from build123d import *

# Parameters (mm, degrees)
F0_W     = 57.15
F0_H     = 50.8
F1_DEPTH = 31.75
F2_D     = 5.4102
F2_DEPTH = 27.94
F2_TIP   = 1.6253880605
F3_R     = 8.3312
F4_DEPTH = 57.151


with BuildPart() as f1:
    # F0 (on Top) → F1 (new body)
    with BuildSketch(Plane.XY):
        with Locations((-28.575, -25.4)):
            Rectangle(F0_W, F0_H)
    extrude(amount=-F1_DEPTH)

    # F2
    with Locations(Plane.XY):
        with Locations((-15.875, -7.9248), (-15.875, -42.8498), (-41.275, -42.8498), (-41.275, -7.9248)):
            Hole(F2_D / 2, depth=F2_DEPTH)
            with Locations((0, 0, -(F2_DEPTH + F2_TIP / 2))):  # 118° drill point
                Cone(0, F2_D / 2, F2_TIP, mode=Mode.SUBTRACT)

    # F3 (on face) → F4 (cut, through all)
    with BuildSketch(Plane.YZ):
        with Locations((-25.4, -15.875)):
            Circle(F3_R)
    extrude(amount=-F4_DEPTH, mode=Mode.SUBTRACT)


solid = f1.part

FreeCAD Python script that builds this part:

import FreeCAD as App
import Part
import Sketcher
from FreeCAD import Vector
Q = App.Units.Quantity

doc = App.newDocument("Part")
params = doc.addObject("Spreadsheet::Sheet", "Params")
for row, (alias, value) in enumerate([
    ("sketch1_height", "2 in"),
    ("sketch1_width", "2.25 in"),
    ("pad1_length", "1.25 in"),
    ("sketch2_diameter", "0.213 in"),
    ("hole_diameter", "0.213 in"),
    ("hole_depth", "1.1 in"),
    ("sketch3_diameter", "0.656 in"),
], start=1):
    params.set(f"A{row}", alias)
    params.set(f"B{row}", "=" + value)
    params.setAlias(f"B{row}", alias)

body = doc.addObject("PartDesign::Body", "Body")

# Sketch on XY plane
sketch1 = body.newObject("Sketcher::SketchObject", "Sketch")
sketch1.AttachmentSupport = (doc.getObject("XY_Plane"), [""])
sketch1.MapMode = "FlatFace"
sketch1.addGeometry([
    Part.LineSegment(Vector(-57, 0, 0), Vector(-57, -51, 0)),
    Part.LineSegment(Vector(-57, -51, 0), Vector(0, -51, 0)),
    Part.LineSegment(Vector(0, -51, 0), Vector(0, 0, 0)),
    Part.LineSegment(Vector(0, 0, 0), Vector(-57, 0, 0)),
], False)
sketch1.addConstraint([
    Sketcher.Constraint("Coincident", 0, 2, 1, 1),
    Sketcher.Constraint("Coincident", 1, 2, 2, 1),
    Sketcher.Constraint("Coincident", 2, 2, 3, 1),
    Sketcher.Constraint("Coincident", 3, 2, 0, 1),
    Sketcher.Constraint("Vertical", 0),
    Sketcher.Constraint("Horizontal", 1),
    Sketcher.Constraint("Vertical", 2),
    Sketcher.Constraint("Horizontal", 3),
    Sketcher.Constraint("Coincident", 2, 2, -1, 1),
    Sketcher.Constraint("DistanceY", 0, 2, 0, 1, Q("2 in")),
    Sketcher.Constraint("DistanceX", 1, 1, 1, 2, Q("2.25 in")),
])
sketch1.setExpression("Constraints[9]", "Params.sketch1_height")
sketch1.setExpression("Constraints[10]", "Params.sketch1_width")
pad1 = body.newObject("PartDesign::Pad", "Pad")
pad1.Profile = sketch1
pad1.setExpression("Length", "Params.pad1_length")
pad1.Reversed = True

# Sketch on XY plane
sketch2 = body.newObject("Sketcher::SketchObject", "Sketch001")
sketch2.AttachmentSupport = (doc.getObject("XY_Plane"), [""])
sketch2.MapMode = "FlatFace"
sketch2.addGeometry([
    Part.Circle(Vector(-15.9, -7.9, 0), Vector(0, 0, 1), 2.7),
    Part.Circle(Vector(-15.9, -42.8, 0), Vector(0, 0, 1), 2.7),
    Part.Circle(Vector(-41.3, -42.8, 0), Vector(0, 0, 1), 2.7),
    Part.Circle(Vector(-41.3, -7.9, 0), Vector(0, 0, 1), 2.7),
], False)
sketch2.addConstraint([
    Sketcher.Constraint("Equal", 0, 1),
    Sketcher.Constraint("Equal", 1, 2),
    Sketcher.Constraint("Equal", 2, 3),
    Sketcher.Constraint("Horizontal", 1, 3, 2, 3),
    Sketcher.Constraint("Horizontal", 0, 3, 3, 3),
    Sketcher.Constraint("Vertical", 0, 3, 1, 3),
    Sketcher.Constraint("Vertical", 2, 3, 3, 3),
    Sketcher.Constraint("Diameter", 0, Q("0.213 in")),
    Sketcher.Constraint("DistanceX", 2, 3, 1, 3, Q("1 in")),
    Sketcher.Constraint("DistanceX", 0, 3, -1, 1, Q("0.625 in")),
    Sketcher.Constraint("DistanceY", 0, 3, -1, 1, Q("0.312 in")),
    Sketcher.Constraint("DistanceY", 1, 3, -1, 1, Q("1.687 in")),
])
sketch2.setExpression("Constraints[7]", "Params.sketch2_diameter")
doc.recompute()
hole = body.newObject("PartDesign::Hole", "Hole")
hole.Profile = sketch2
hole.ThreadType = "None"
hole.setExpression("Diameter", "Params.hole_diameter")
hole.DepthType = "Dimension"
hole.setExpression("Depth", "Params.hole_depth")
hole.DrillPoint = "Angled"
hole.DrillPointAngle = 118

# Sketch on YZ plane
sketch3 = body.newObject("Sketcher::SketchObject", "Sketch002")
sketch3.AttachmentSupport = (doc.getObject("YZ_Plane"), [""])
sketch3.MapMode = "FlatFace"
sketch3.addGeometry(Part.Circle(Vector(-25, -16, 0), Vector(0, 0, 1), 8), False)
sketch3.addConstraint([
    Sketcher.Constraint("Diameter", 0, Q("0.656 in")),
    Sketcher.Constraint("DistanceX", 0, 3, -1, 1, Q("1 in")),
    Sketcher.Constraint("DistanceY", 0, 3, -1, 1, Q("0.625 in")),
])
sketch3.setExpression("Constraints[0]", "Params.sketch3_diameter")
pocket1 = body.newObject("PartDesign::Pocket", "Pocket")
pocket1.Profile = sketch3
pocket1.Type = "ThroughAll"

doc.recompute()
